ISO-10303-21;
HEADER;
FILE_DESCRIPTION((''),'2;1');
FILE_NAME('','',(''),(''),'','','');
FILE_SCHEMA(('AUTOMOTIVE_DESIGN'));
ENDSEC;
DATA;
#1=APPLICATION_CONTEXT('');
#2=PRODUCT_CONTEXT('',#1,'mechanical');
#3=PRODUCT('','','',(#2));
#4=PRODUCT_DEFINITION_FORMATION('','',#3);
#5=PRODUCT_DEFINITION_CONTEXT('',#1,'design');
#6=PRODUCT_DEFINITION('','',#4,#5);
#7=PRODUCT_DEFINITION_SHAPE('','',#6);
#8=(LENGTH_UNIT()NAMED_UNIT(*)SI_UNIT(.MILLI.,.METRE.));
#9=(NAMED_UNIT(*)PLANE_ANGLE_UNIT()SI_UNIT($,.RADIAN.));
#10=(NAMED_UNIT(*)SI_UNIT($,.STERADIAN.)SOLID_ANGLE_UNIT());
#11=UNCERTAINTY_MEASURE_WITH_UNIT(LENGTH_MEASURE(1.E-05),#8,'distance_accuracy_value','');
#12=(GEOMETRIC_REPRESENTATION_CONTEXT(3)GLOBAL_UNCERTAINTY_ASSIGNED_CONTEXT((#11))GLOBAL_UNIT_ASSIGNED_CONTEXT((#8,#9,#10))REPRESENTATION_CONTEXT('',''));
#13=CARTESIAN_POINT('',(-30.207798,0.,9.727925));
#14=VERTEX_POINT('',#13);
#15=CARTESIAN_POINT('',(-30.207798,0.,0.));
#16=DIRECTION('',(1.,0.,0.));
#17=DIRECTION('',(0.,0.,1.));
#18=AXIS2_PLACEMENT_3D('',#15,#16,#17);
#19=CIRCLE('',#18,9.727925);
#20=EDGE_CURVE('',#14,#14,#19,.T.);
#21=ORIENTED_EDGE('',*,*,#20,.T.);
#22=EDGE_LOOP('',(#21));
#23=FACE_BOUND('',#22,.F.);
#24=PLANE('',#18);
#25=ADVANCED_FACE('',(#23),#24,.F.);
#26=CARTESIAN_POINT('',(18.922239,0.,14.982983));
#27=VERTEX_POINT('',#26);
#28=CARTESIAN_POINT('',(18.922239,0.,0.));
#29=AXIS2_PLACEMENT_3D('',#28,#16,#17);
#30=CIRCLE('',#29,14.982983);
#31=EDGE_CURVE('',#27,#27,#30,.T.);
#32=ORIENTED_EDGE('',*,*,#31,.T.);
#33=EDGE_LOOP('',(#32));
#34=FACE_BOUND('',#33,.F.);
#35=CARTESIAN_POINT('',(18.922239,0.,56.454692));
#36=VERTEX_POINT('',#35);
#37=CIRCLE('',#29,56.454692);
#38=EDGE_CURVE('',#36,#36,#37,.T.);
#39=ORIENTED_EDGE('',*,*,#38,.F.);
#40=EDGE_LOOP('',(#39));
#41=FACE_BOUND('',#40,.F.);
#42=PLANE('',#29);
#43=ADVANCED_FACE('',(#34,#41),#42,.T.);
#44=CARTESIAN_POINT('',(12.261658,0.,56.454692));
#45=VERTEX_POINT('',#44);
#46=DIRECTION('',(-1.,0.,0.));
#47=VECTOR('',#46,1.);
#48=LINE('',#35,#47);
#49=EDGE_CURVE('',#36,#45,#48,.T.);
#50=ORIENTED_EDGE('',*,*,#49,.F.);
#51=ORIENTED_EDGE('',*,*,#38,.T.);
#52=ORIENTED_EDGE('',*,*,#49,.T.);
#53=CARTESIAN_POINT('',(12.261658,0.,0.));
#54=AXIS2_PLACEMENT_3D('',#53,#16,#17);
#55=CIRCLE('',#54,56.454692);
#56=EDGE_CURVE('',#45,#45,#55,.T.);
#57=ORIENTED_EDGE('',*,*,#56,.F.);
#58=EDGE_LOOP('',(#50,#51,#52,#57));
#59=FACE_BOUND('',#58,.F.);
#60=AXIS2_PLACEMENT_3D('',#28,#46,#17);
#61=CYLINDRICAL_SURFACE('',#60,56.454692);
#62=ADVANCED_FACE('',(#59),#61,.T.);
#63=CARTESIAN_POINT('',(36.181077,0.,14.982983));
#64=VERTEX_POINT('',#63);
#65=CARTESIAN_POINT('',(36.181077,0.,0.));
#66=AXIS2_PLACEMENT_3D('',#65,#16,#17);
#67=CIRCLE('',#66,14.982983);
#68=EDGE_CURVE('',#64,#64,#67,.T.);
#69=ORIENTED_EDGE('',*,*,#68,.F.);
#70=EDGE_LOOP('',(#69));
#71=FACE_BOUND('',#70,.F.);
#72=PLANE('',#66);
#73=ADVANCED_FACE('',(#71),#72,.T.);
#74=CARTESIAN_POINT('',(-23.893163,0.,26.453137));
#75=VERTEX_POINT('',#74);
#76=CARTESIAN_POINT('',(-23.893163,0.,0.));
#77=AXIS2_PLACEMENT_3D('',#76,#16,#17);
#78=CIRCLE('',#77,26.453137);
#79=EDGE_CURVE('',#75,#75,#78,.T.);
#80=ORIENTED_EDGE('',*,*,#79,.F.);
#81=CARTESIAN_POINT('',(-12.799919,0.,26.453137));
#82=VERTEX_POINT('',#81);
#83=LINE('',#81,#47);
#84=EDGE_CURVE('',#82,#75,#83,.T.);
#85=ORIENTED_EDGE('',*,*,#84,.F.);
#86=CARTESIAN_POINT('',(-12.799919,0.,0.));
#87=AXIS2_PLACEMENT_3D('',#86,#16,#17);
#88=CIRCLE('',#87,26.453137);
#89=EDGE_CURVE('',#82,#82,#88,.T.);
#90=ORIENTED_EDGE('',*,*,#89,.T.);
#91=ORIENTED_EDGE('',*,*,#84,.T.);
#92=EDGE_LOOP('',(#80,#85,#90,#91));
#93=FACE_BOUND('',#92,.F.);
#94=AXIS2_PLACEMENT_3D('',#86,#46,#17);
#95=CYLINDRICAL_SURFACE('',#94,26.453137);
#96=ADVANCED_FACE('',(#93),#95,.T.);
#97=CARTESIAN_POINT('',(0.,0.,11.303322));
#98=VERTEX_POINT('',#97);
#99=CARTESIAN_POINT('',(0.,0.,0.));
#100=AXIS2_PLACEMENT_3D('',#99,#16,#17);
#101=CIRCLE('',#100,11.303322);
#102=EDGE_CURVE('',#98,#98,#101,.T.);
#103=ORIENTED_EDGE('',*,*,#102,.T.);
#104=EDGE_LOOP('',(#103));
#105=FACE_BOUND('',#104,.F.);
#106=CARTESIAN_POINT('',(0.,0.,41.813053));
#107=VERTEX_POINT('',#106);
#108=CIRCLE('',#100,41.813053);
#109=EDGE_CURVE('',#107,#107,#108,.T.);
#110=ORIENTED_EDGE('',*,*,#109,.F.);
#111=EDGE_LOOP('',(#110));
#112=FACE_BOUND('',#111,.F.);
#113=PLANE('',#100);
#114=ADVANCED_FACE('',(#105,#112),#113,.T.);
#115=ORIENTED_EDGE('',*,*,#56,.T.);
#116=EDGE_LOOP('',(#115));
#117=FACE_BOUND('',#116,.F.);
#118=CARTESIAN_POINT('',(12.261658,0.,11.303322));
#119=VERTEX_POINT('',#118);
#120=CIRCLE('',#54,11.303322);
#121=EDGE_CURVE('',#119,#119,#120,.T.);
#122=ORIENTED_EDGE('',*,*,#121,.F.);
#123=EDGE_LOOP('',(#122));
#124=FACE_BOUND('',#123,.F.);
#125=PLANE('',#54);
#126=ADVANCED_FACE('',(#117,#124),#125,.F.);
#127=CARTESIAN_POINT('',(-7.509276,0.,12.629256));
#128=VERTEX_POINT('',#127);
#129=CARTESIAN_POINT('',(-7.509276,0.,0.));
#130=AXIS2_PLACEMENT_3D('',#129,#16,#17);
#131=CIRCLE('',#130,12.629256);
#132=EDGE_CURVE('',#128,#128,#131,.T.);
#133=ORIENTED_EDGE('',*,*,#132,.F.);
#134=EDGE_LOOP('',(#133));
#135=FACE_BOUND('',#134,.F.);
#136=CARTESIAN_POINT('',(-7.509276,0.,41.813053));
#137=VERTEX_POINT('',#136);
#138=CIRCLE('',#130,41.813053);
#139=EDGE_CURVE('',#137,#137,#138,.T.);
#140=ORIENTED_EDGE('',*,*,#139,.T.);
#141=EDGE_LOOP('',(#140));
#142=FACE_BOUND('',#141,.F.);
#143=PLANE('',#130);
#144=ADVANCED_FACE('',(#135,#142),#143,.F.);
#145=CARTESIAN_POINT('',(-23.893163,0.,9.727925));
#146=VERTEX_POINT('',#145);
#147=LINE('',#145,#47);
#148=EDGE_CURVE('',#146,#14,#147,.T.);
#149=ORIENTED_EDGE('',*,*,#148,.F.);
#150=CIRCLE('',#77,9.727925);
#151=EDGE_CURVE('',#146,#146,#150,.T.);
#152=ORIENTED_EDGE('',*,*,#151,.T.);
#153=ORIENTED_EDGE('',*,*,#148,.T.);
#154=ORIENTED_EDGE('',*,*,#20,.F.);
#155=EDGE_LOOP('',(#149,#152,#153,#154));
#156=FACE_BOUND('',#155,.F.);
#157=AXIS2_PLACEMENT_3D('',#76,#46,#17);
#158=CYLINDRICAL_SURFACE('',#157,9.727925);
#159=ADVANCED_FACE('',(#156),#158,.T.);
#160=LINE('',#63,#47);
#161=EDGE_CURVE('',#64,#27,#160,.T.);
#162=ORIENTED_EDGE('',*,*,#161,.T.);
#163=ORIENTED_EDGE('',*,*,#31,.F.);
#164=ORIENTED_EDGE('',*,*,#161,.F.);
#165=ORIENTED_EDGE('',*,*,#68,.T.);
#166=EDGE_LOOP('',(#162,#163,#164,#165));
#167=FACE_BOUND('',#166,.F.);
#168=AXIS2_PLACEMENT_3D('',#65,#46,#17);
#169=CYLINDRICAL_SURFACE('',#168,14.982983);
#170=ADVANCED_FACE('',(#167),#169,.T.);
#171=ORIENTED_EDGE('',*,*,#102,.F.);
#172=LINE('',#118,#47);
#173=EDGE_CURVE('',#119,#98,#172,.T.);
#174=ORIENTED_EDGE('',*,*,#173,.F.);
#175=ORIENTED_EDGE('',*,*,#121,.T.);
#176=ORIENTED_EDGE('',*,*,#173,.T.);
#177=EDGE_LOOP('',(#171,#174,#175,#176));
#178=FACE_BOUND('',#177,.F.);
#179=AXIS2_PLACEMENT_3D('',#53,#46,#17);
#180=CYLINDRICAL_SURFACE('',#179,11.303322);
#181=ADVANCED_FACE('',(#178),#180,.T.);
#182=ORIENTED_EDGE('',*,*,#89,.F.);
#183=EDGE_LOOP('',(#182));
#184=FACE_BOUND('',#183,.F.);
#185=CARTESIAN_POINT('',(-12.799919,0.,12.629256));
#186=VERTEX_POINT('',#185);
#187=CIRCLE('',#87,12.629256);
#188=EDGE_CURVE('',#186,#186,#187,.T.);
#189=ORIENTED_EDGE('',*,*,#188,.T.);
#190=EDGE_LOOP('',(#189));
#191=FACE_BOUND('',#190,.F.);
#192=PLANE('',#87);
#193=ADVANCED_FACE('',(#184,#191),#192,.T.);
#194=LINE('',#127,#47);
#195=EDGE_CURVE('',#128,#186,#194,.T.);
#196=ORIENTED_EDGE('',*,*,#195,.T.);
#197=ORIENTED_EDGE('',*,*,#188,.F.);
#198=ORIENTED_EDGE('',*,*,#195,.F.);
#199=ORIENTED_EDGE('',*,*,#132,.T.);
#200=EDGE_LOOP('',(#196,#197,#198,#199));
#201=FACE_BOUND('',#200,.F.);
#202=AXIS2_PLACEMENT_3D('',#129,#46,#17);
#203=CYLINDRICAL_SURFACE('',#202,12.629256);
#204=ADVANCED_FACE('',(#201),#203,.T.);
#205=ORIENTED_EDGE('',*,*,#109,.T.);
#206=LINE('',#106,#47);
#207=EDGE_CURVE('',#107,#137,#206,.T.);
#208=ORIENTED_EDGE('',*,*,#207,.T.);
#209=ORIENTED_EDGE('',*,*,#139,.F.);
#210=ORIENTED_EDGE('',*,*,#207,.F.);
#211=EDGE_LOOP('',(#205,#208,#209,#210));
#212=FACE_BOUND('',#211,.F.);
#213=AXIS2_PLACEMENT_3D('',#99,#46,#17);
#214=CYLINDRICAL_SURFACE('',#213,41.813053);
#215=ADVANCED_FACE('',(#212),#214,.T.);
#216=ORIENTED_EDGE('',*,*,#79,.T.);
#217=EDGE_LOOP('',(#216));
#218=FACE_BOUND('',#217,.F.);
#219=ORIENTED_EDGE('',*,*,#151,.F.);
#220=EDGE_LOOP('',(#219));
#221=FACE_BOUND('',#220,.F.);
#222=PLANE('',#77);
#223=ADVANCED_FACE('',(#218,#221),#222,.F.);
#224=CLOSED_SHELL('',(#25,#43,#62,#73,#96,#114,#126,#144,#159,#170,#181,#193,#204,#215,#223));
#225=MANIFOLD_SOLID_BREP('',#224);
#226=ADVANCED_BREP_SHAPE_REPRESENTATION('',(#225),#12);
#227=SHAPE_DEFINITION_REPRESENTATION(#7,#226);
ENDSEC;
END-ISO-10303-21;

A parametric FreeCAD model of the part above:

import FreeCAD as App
import Part
import Sketcher

V = App.Vector
Q = App.Units.Quantity

doc = App.newDocument("Part")
params = doc.addObject("Spreadsheet::Sheet", "Params")
for row, (alias, value) in enumerate([
    ("revolution_angle", "360 deg"),
], start=1):
    params.set(f"A{row}", alias)
    params.set(f"B{row}", "=" + value)
    params.setAlias(f"B{row}", alias)

body = doc.addObject("PartDesign::Body", "Body")

sketch1 = doc.addObject("Sketcher::SketchObject", "Sketch")
body.addObject(sketch1)
sketch1.AttachmentSupport = (doc.XZ_Plane, [""])
sketch1.MapMode = "FlatFace"
sketch1.addGeometry([
    Part.LineSegment(V(-30.207798, 0, 0), V(36.181077, 0, 0)),
    Part.LineSegment(V(36.181077, 0, 0), V(36.181077, 14.982983, 0)),
    Part.LineSegment(V(36.181077, 14.982983, 0), V(18.922239, 14.982983, 0)),
    Part.LineSegment(V(18.922239, 14.982983, 0), V(18.922239, 56.454692, 0)),
    Part.LineSegment(V(18.922239, 56.454692, 0), V(12.261658, 56.454692, 0)),
    Part.LineSegment(V(12.261658, 56.454692, 0), V(12.261658, 11.303322, 0)),
    Part.LineSegment(V(12.261658, 11.303322, 0), V(0, 11.303322, 0)),
    Part.LineSegment(V(0, 11.303322, 0), V(0, 41.813053, 0)),
    Part.LineSegment(V(0, 41.813053, 0), V(-7.509276, 41.813053, 0)),
    Part.LineSegment(V(-7.509276, 41.813053, 0), V(-7.509276, 12.629256, 0)),
    Part.LineSegment(V(-7.509276, 12.629256, 0), V(-12.799919, 12.629256, 0)),
    Part.LineSegment(V(-12.799919, 12.629256, 0), V(-12.799919, 26.453137, 0)),
    Part.LineSegment(V(-12.799919, 26.453137, 0), V(-23.893163, 26.453137, 0)),
    Part.LineSegment(V(-23.893163, 26.453137, 0), V(-23.893163, 9.727925, 0)),
    Part.LineSegment(V(-23.893163, 9.727925, 0), V(-30.207798, 9.727925, 0)),
    Part.LineSegment(V(-30.207798, 9.727925, 0), V(-30.207798, 0, 0)),
], False)
sketch1.addConstraint([
    Sketcher.Constraint("Coincident", 0, 2, 1, 1),
    Sketcher.Constraint("Coincident", 1, 2, 2, 1),
    Sketcher.Constraint("Coincident", 2, 2, 3, 1),
    Sketcher.Constraint("Coincident", 3, 2, 4, 1),
    Sketcher.Constraint("Coincident", 4, 2, 5, 1),
    Sketcher.Constraint("Coincident", 5, 2, 6, 1),
    Sketcher.Constraint("Coincident", 6, 2, 7, 1),
    Sketcher.Constraint("Coincident", 7, 2, 8, 1),
    Sketcher.Constraint("Coincident", 8, 2, 9, 1),
    Sketcher.Constraint("Coincident", 9, 2, 10, 1),
    Sketcher.Constraint("Coincident", 10, 2, 11, 1),
    Sketcher.Constraint("Coincident", 11, 2, 12, 1),
    Sketcher.Constraint("Coincident", 12, 2, 13, 1),
    Sketcher.Constraint("Coincident", 13, 2, 14, 1),
    Sketcher.Constraint("Coincident", 14, 2, 15, 1),
    Sketcher.Constraint("Coincident", 15, 2, 0, 1),
    Sketcher.Constraint("Horizontal", 0),
    Sketcher.Constraint("Vertical", 1),
    Sketcher.Constraint("Horizontal", 2),
    Sketcher.Constraint("Vertical", 3),
    Sketcher.Constraint("Horizontal", 4),
    Sketcher.Constraint("Vertical", 5),
    Sketcher.Constraint("Horizontal", 6),
    Sketcher.Constraint("Vertical", 7),
    Sketcher.Constraint("Horizontal", 8),
    Sketcher.Constraint("Vertical", 9),
    Sketcher.Constraint("Horizontal", 10),
    Sketcher.Constraint("Vertical", 11),
    Sketcher.Constraint("Horizontal", 12),
    Sketcher.Constraint("Vertical", 13),
    Sketcher.Constraint("Horizontal", 14),
    Sketcher.Constraint("Vertical", 15),
    Sketcher.Constraint("PointOnObject", 0, 2, -1),
    Sketcher.Constraint("PointOnObject", 6, 2, -2),
    Sketcher.Constraint("DistanceX", 2, 2, 2, 1, Q("17.258838 mm")),
    Sketcher.Constraint("DistanceX", 4, 2, 4, 1, Q("6.660581 mm")),
    Sketcher.Constraint("DistanceX", 6, 2, 6, 1, Q("12.261658 mm")),
    Sketcher.Constraint("DistanceY", 3, 1, 3, 2, Q("41.471709 mm")),
    Sketcher.Constraint("DistanceY", 5, 2, 5, 1, Q("45.15137 mm")),
    Sketcher.Constraint("DistanceY", 7, 1, 7, 2, Q("30.509731 mm")),
    Sketcher.Constraint("DistanceY", 11, 1, 11, 2, Q("13.823881 mm")),
    Sketcher.Constraint("DistanceY", 13, 2, 13, 1, Q("16.725212 mm")),
    Sketcher.Constraint("DistanceX", 14, 2, -1, 1, Q("30.207798 mm")),
    Sketcher.Constraint("DistanceX", 8, 2, 8, 1, Q("7.509276 mm")),
    Sketcher.Constraint("DistanceX", 10, 2, 10, 1, Q("5.290643 mm")),
    Sketcher.Constraint("DistanceX", 12, 2, 12, 1, Q("11.093244 mm")),
    Sketcher.Constraint("DistanceY", 1, 1, 1, 2, Q("14.982983 mm")),
    Sketcher.Constraint("DistanceY", 9, 2, 9, 1, Q("29.183797 mm")),
])
revolution = doc.addObject("PartDesign::Revolution", "Revolution")
body.addObject(revolution)
revolution.Profile = sketch1
revolution.ReferenceAxis = (sketch1, ["H_Axis"])
revolution.setExpression("Angle", "Params.revolution_angle")

doc.recompute()
